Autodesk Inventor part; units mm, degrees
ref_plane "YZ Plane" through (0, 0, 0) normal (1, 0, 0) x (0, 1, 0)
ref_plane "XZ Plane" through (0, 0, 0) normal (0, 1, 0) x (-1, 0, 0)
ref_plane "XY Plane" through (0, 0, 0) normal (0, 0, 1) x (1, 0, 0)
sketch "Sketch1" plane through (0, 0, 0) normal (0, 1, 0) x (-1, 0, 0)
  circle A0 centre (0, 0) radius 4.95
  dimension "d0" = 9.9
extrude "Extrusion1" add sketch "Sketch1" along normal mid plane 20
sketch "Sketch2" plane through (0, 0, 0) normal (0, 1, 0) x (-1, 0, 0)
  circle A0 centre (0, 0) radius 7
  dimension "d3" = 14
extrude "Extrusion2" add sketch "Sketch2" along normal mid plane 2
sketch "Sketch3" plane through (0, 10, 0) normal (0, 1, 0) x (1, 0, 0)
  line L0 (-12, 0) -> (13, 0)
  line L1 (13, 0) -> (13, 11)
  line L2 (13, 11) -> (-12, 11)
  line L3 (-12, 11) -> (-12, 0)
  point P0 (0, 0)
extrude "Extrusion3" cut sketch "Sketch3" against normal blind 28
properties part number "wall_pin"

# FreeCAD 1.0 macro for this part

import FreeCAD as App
import Part
import Sketcher
Q = App.Units.Quantity

doc = App.newDocument("Part")
body = doc.addObject("PartDesign::Body", "Body")

# Sketch on XZ plane
sketch1 = body.newObject("Sketcher::SketchObject", "Sketch")
sketch1.AttachmentSupport = (doc.getObject("XZ_Plane"), [""])
sketch1.MapMode = "FlatFace"
sketch1.addGeometry(Part.Circle(App.Vector(0, 0, 0), App.Vector(0, 0, 1), 4.95), False)
sketch1.addConstraint(Sketcher.Constraint("Coincident", 0, 3, -1, 1))
sketch1.addConstraint(Sketcher.Constraint("Diameter", 0, Q("9.9 mm")))
pad1 = body.newObject("PartDesign::Pad", "Pad")
pad1.Profile = sketch1
pad1.Length = 20
pad1.Midplane = True

# Sketch on XZ plane
sketch2 = body.newObject("Sketcher::SketchObject", "Sketch001")
sketch2.AttachmentSupport = (doc.getObject("XZ_Plane"), [""])
sketch2.MapMode = "FlatFace"
sketch2.addGeometry(Part.Circle(App.Vector(0, 0, 0), App.Vector(0, 0, 1), 7), False)
sketch2.addConstraint(Sketcher.Constraint("Coincident", 0, 3, -1, 1))
sketch2.addConstraint(Sketcher.Constraint("Diameter", 0, Q("14 mm")))
pad2 = body.newObject("PartDesign::Pad", "Pad001")
pad2.Profile = sketch2
pad2.Length = 2
pad2.Midplane = True

# Sketch on XZ plane
sketch3 = body.newObject("Sketcher::SketchObject", "Sketch002")
sketch3.AttachmentSupport = (doc.getObject("XZ_Plane"), [""])
sketch3.MapMode = "FlatFace"
sketch3.AttachmentOffset = App.Placement(App.Vector(0, 0, -10), App.Rotation())
sketch3.addGeometry(Part.LineSegment(App.Vector(-12, -11, 0), App.Vector(-12, 0, 0)), False)
sketch3.addGeometry(Part.LineSegment(App.Vector(-12, 0, 0), App.Vector(13, 0, 0)), False)
sketch3.addGeometry(Part.LineSegment(App.Vector(13, 0, 0), App.Vector(13, -11, 0)), False)
sketch3.addGeometry(Part.LineSegment(App.Vector(13, -11, 0), App.Vector(-12, -11, 0)), False)
sketch3.addConstraint(Sketcher.Constraint("Coincident", 0, 2, 1, 1))
sketch3.addConstraint(Sketcher.Constraint("Coincident", 1, 2, 2, 1))
sketch3.addConstraint(Sketcher.Constraint("Coincident", 2, 2, 3, 1))
sketch3.addConstraint(Sketcher.Constraint("Coincident", 3, 2, 0, 1))
sketch3.addConstraint(Sketcher.Constraint("Vertical", 0))
sketch3.addConstraint(Sketcher.Constraint("Horizontal", 1))
sketch3.addConstraint(Sketcher.Constraint("Vertical", 2))
sketch3.addConstraint(Sketcher.Constraint("Horizontal", 3))
sketch3.addConstraint(Sketcher.Constraint("PointOnObject", 0, 2, -1))
sketch3.addConstraint(Sketcher.Constraint("DistanceX", 1, 1, 1, 2, Q("25 mm")))
sketch3.addConstraint(Sketcher.Constraint("DistanceY", 0, 1, 0, 2, Q("11 mm")))
sketch3.addConstraint(Sketcher.Constraint("DistanceX", 0, 2, -1, 1, Q("12 mm")))
pocket1 = body.newObject("PartDesign::Pocket", "Pocket")
pocket1.Profile = sketch3
pocket1.Length = 28
pocket1.Reversed = True

doc.recompute()
